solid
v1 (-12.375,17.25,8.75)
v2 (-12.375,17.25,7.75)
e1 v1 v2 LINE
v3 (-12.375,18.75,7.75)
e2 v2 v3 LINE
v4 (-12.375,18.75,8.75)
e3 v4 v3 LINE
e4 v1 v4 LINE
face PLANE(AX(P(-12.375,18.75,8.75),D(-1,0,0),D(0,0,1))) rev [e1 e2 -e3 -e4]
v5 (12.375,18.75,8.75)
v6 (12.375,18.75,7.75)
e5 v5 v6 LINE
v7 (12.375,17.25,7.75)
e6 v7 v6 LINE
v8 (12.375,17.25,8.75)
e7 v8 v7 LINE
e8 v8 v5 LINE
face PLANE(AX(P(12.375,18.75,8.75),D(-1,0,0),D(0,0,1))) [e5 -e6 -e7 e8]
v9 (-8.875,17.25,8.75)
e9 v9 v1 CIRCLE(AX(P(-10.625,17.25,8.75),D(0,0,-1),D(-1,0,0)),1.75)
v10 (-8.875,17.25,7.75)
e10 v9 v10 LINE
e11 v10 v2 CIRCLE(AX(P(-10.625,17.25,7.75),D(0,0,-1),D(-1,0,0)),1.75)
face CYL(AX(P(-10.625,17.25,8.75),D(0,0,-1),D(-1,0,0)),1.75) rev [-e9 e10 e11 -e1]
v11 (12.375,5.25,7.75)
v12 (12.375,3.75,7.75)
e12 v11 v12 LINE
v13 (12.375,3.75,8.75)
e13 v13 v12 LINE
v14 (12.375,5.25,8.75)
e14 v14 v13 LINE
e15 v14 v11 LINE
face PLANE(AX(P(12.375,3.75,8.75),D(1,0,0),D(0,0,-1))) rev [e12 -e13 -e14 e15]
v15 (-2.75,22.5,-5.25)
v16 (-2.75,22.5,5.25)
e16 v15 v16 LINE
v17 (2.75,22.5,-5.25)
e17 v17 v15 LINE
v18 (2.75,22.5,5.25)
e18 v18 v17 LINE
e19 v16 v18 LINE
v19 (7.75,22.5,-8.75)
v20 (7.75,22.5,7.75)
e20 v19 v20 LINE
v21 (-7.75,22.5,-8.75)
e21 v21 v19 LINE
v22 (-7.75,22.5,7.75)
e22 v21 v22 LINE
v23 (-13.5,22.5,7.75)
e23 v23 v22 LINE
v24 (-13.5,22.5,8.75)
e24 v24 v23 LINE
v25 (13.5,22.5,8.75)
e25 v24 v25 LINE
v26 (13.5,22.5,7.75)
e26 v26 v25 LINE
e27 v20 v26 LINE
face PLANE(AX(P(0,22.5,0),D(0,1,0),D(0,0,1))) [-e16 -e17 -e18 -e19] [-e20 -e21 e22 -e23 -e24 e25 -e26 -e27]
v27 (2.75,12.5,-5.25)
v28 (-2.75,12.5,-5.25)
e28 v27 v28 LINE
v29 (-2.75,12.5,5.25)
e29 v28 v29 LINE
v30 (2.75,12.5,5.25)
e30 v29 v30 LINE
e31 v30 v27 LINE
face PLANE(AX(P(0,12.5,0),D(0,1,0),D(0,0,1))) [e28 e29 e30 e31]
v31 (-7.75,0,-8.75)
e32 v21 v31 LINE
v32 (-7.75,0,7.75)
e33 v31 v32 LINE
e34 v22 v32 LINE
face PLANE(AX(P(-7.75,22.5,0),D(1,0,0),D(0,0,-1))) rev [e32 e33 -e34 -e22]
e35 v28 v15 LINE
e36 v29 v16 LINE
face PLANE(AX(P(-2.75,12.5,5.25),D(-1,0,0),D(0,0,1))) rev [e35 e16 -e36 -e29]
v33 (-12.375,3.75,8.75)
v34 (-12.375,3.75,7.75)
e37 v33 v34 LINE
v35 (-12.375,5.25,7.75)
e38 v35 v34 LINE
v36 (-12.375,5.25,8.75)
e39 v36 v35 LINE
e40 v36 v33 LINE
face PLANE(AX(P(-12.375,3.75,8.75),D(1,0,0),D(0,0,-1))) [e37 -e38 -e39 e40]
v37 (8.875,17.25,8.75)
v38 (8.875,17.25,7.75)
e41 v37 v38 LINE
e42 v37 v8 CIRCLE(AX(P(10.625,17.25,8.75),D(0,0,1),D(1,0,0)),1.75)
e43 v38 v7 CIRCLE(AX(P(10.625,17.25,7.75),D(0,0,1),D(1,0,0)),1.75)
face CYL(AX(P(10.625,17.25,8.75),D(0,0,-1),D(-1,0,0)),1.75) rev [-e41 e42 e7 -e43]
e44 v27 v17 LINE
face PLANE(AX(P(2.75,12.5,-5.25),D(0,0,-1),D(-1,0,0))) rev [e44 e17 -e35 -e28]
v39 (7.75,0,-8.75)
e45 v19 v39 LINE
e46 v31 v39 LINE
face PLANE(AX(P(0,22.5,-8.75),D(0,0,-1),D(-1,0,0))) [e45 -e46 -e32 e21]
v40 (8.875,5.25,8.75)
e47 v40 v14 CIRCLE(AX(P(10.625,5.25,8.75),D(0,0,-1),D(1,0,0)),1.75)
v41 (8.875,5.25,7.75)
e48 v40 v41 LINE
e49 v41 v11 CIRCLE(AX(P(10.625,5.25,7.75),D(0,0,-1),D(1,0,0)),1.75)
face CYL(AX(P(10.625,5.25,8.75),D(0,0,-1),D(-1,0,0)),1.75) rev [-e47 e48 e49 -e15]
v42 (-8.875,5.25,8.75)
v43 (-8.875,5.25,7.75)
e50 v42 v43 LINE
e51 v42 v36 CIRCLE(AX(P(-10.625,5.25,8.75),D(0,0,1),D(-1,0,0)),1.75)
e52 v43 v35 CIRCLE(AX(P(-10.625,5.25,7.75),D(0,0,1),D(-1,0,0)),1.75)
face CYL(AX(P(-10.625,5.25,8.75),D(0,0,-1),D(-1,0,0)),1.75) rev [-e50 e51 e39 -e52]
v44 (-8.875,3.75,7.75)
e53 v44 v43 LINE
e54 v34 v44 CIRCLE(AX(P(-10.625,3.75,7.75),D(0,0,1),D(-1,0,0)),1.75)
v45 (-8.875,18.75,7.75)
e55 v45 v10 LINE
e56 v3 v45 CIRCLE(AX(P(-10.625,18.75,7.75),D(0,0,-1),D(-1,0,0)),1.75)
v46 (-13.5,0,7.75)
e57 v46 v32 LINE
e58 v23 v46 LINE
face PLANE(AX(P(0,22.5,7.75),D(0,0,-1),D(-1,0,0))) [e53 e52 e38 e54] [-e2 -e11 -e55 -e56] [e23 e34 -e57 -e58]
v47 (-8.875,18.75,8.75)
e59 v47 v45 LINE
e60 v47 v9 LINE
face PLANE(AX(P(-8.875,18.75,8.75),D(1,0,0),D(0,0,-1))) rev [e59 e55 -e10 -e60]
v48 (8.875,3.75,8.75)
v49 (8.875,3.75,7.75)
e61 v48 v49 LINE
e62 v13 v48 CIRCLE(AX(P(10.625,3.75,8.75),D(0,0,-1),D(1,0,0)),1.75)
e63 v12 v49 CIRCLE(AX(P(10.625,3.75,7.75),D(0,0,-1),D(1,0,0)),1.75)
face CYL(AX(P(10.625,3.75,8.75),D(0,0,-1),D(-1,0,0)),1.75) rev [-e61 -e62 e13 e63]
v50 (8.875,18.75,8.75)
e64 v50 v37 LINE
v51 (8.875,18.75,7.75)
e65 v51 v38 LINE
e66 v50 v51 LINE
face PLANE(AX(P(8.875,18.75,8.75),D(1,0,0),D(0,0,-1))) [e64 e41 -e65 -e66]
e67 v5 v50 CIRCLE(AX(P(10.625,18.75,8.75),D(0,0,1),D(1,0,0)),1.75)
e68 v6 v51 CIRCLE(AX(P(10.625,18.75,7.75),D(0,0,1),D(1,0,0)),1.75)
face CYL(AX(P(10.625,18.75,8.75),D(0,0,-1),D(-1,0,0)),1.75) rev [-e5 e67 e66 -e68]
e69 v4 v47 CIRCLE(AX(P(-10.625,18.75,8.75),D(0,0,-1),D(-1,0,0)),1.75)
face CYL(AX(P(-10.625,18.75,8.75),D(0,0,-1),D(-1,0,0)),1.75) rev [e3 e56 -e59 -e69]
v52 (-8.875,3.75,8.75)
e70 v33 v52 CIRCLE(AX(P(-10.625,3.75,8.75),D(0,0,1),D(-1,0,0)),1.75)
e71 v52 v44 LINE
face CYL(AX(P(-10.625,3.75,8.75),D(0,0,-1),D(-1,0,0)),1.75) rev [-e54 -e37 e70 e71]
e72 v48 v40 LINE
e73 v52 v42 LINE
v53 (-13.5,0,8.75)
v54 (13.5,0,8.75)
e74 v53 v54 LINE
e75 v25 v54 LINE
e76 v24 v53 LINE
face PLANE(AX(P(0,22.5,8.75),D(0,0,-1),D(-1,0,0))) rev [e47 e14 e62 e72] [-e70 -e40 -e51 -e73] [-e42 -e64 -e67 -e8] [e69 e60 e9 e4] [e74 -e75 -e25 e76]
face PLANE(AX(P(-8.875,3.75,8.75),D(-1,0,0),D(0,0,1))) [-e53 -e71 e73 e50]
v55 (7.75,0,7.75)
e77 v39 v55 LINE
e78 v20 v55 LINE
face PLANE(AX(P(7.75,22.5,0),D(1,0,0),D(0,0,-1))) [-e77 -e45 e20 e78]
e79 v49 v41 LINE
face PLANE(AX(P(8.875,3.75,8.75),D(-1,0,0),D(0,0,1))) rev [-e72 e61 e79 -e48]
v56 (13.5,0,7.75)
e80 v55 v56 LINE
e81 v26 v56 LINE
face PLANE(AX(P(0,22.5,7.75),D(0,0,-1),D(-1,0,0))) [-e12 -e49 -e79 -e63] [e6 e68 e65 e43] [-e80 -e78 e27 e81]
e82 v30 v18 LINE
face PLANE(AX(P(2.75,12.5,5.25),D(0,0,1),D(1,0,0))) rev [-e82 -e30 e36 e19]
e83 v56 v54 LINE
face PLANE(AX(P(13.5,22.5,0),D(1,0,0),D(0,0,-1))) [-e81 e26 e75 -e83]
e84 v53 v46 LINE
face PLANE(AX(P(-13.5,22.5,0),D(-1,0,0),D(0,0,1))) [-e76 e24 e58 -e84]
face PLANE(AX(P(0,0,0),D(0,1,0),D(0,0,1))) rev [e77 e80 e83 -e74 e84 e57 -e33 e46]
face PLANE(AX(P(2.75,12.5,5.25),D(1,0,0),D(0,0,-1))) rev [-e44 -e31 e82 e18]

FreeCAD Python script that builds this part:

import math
import FreeCAD as App
import Part
import Sketcher
Q = App.Units.Quantity

doc = App.newDocument("Part")
body = doc.addObject("PartDesign::Body", "Body")

# Sketch on XZ plane
sketch1 = body.newObject("Sketcher::SketchObject", "Sketch")
sketch1.AttachmentSupport = (doc.getObject("XZ_Plane"), [""])
sketch1.MapMode = "FlatFace"
sketch1.addGeometry(Part.LineSegment(App.Vector(-7.75, -8.75, 0), App.Vector(-7.75, 7.75, 0)), False)
sketch1.addGeometry(Part.LineSegment(App.Vector(-7.75, 7.75, 0), App.Vector(-13.5, 7.75, 0)), False)
sketch1.addGeometry(Part.LineSegment(App.Vector(-13.5, 7.75, 0), App.Vector(-13.5, 8.75, 0)), False)
sketch1.addGeometry(Part.LineSegment(App.Vector(-13.5, 8.75, 0), App.Vector(13.5, 8.75, 0)), False)
sketch1.addGeometry(Part.LineSegment(App.Vector(13.5, 8.75, 0), App.Vector(13.5, 7.75, 0)), False)
sketch1.addGeometry(Part.LineSegment(App.Vector(13.5, 7.75, 0), App.Vector(7.75, 7.75, 0)), False)
sketch1.addGeometry(Part.LineSegment(App.Vector(7.75, 7.75, 0), App.Vector(7.75, -8.75, 0)), False)
sketch1.addGeometry(Part.LineSegment(App.Vector(7.75, -8.75, 0), App.Vector(-7.75, -8.75, 0)), False)
sketch1.addConstraint(Sketcher.Constraint("Coincident", 0, 2, 1, 1))
sketch1.addConstraint(Sketcher.Constraint("Coincident", 1, 2, 2, 1))
sketch1.addConstraint(Sketcher.Constraint("Coincident", 2, 2, 3, 1))
sketch1.addConstraint(Sketcher.Constraint("Coincident", 3, 2, 4, 1))
sketch1.addConstraint(Sketcher.Constraint("Coincident", 4, 2, 5, 1))
sketch1.addConstraint(Sketcher.Constraint("Coincident", 5, 2, 6, 1))
sketch1.addConstraint(Sketcher.Constraint("Coincident", 6, 2, 7, 1))
sketch1.addConstraint(Sketcher.Constraint("Coincident", 7, 2, 0, 1))
sketch1.addConstraint(Sketcher.Constraint("Vertical", 0))
sketch1.addConstraint(Sketcher.Constraint("Horizontal", 1))
sketch1.addConstraint(Sketcher.Constraint("Vertical", 2))
sketch1.addConstraint(Sketcher.Constraint("Horizontal", 3))
sketch1.addConstraint(Sketcher.Constraint("Vertical", 4))
sketch1.addConstraint(Sketcher.Constraint("Horizontal", 5))
sketch1.addConstraint(Sketcher.Constraint("Vertical", 6))
sketch1.addConstraint(Sketcher.Constraint("Horizontal", 7))
sketch1.addConstraint(Sketcher.Constraint("Symmetric", 1, 2, 4, 2, -2))
sketch1.addConstraint(Sketcher.Constraint("Equal", 1, 5))
sketch1.addConstraint(Sketcher.Constraint("DistanceX", 3, 1, 3, 2, Q("27 mm")))
sketch1.addConstraint(Sketcher.Constraint("DistanceY", 2, 1, 2, 2, Q("1 mm")))
sketch1.addConstraint(Sketcher.Constraint("DistanceX", 7, 2, 7, 1, Q("15.5 mm")))
sketch1.addConstraint(Sketcher.Constraint("DistanceY", 0, 1, 0, 2, Q("16.5 mm")))
sketch1.addConstraint(Sketcher.Constraint("DistanceY", -1, 1, 0, 2, Q("7.75 mm")))
pad1 = body.newObject("PartDesign::Pad", "Pad")
pad1.Profile = sketch1
pad1.Length = 22.5
pad1.Reversed = True

# Sketch on XY plane
sketch2 = body.newObject("Sketcher::SketchObject", "Sketch001")
sketch2.AttachmentSupport = (doc.getObject("XY_Plane"), [""])
sketch2.MapMode = "FlatFace"
sketch2.AttachmentOffset = App.Placement(App.Vector(0, 0, 7.75), App.Rotation())
sketch2.addGeometry(Part.LineSegment(App.Vector(-12.375, 17.25, 0), App.Vector(-12.375, 18.75, 0)), False)
sketch2.addGeometry(Part.ArcOfCircle(Part.Circle(App.Vector(-10.625, 18.75, 0), App.Vector(0, 0, 1), 1.75), math.radians(0), math.radians(180)), False)
sketch2.addGeometry(Part.LineSegment(App.Vector(-8.875, 18.75, 0), App.Vector(-8.875, 17.25, 0)), False)
sketch2.addGeometry(Part.ArcOfCircle(Part.Circle(App.Vector(-10.625, 17.25, 0), App.Vector(0, 0, 1), 1.75), math.radians(180), math.radians(360)), False)
sketch2.addConstraint(Sketcher.Constraint("Tangent", 0, 2, 1, 2))
sketch2.addConstraint(Sketcher.Constraint("Tangent", 1, 1, 2, 1))
sketch2.addConstraint(Sketcher.Constraint("Tangent", 2, 2, 3, 2))
sketch2.addConstraint(Sketcher.Constraint("Tangent", 3, 1, 0, 1))
sketch2.addConstraint(Sketcher.Constraint("Vertical", 0))
sketch2.addConstraint(Sketcher.Constraint("Vertical", 2))
sketch2.addConstraint(Sketcher.Constraint("Radius", 1, Q("1.75 mm")))
sketch2.addConstraint(Sketcher.Constraint("DistanceY", 0, 1, 0, 2, Q("1.5 mm")))
sketch2.addConstraint(Sketcher.Constraint("DistanceY", -1, 1, 1, 3, Q("18.75 mm")))
sketch2.addConstraint(Sketcher.Constraint("DistanceX", 1, 3, -1, 1, Q("10.625 mm")))
pocket1 = body.newObject("PartDesign::Pocket", "Pocket")
pocket1.Profile = sketch2
pocket1.Type = "ThroughAll"
pocket1.Reversed = True
doc.recompute()

mirrored = body.newObject("PartDesign::Mirrored", "Mirrored")
mirrored.Originals = [pocket1]
mirrored.MirrorPlane = (doc.getObject("YZ_Plane"), [""])
body.Tip = mirrored
doc.recompute()

datumplane = body.newObject("PartDesign::Plane", "DatumPlane")
datumplane.AttachmentSupport = (doc.getObject("XZ_Plane"), [""])
datumplane.MapMode = "FlatFace"
datumplane.AttachmentOffset = App.Placement(App.Vector(0, 0, -11.25), App.Rotation())
mirrored2 = body.newObject("PartDesign::Mirrored", "Mirrored001")
mirrored2.Originals = [pocket1]
mirrored2.MirrorPlane = (datumplane, [""])
body.Tip = mirrored2

# Sketch on XY plane
sketch3 = body.newObject("Sketcher::SketchObject", "Sketch002")
sketch3.AttachmentSupport = (doc.getObject("XY_Plane"), [""])
sketch3.MapMode = "FlatFace"
sketch3.AttachmentOffset = App.Placement(App.Vector(0, 0, 7.75), App.Rotation())
sketch3.addGeometry(Part.LineSegment(App.Vector(12.375, 5.25, 0), App.Vector(12.375, 3.75, 0)), False)
sketch3.addGeometry(Part.ArcOfCircle(Part.Circle(App.Vector(10.625, 3.75, 0), App.Vector(0, 0, 1), 1.75), math.radians(180), math.radians(360)), False)
sketch3.addGeometry(Part.LineSegment(App.Vector(8.875, 3.75, 0), App.Vector(8.875, 5.25, 0)), False)
sketch3.addGeometry(Part.ArcOfCircle(Part.Circle(App.Vector(10.625, 5.25, 0), App.Vector(0, 0, 1), 1.75), math.radians(0), math.radians(180)), False)
sketch3.addConstraint(Sketcher.Constraint("Tangent", 0, 2, 1, 2))
sketch3.addConstraint(Sketcher.Constraint("Tangent", 1, 1, 2, 1))
sketch3.addConstraint(Sketcher.Constraint("Tangent", 2, 2, 3, 2))
sketch3.addConstraint(Sketcher.Constraint("Tangent", 3, 1, 0, 1))
sketch3.addConstraint(Sketcher.Constraint("Vertical", 0))
sketch3.addConstraint(Sketcher.Constraint("Vertical", 2))
sketch3.addConstraint(Sketcher.Constraint("Radius", 1, Q("1.75 mm")))
sketch3.addConstraint(Sketcher.Constraint("DistanceY", 0, 2, 0, 1, Q("1.5 mm")))
sketch3.addConstraint(Sketcher.Constraint("DistanceY", -1, 1, 1, 3, Q("3.75 mm")))
sketch3.addConstraint(Sketcher.Constraint("DistanceX", -1, 1, 1, 3, Q("10.625 mm")))
pocket2 = body.newObject("PartDesign::Pocket", "Pocket001")
pocket2.Profile = sketch3
pocket2.Type = "ThroughAll"
pocket2.Reversed = True

# Sketch on XZ plane
sketch4 = body.newObject("Sketcher::SketchObject", "Sketch003")
sketch4.AttachmentSupport = (doc.getObject("XZ_Plane"), [""])
sketch4.MapMode = "FlatFace"
sketch4.AttachmentOffset = App.Placement(App.Vector(0, 0, -22.5), App.Rotation())
sketch4.addGeometry(Part.LineSegment(App.Vector(-2.75, -5.25, 0), App.Vector(-2.75, 5.25, 0)), False)
sketch4.addGeometry(Part.LineSegment(App.Vector(-2.75, 5.25, 0), App.Vector(2.75, 5.25, 0)), False)
sketch4.addGeometry(Part.LineSegment(App.Vector(2.75, 5.25, 0), App.Vector(2.75, -5.25, 0)), False)
sketch4.addGeometry(Part.LineSegment(App.Vector(2.75, -5.25, 0), App.Vector(-2.75, -5.25, 0)), False)
sketch4.addConstraint(Sketcher.Constraint("Coincident", 0, 2, 1, 1))
sketch4.addConstraint(Sketcher.Constraint("Coincident", 1, 2, 2, 1))
sketch4.addConstraint(Sketcher.Constraint("Coincident", 2, 2, 3, 1))
sketch4.addConstraint(Sketcher.Constraint("Coincident", 3, 2, 0, 1))
sketch4.addConstraint(Sketcher.Constraint("Vertical", 0))
sketch4.addConstraint(Sketcher.Constraint("Horizontal", 1))
sketch4.addConstraint(Sketcher.Constraint("Vertical", 2))
sketch4.addConstraint(Sketcher.Constraint("Horizontal", 3))
sketch4.addConstraint(Sketcher.Constraint("Symmetric", 0, 2, 2, 2, -1, 1))
sketch4.addConstraint(Sketcher.Constraint("DistanceX", 1, 1, 1, 2, Q("5.5 mm")))
sketch4.addConstraint(Sketcher.Constraint("DistanceY", 0, 1, 0, 2, Q("10.5 mm")))
pocket3 = body.newObject("PartDesign::Pocket", "Pocket002")
pocket3.Profile = sketch4
pocket3.Length = 10
pocket3.Reversed = True

doc.recompute()
